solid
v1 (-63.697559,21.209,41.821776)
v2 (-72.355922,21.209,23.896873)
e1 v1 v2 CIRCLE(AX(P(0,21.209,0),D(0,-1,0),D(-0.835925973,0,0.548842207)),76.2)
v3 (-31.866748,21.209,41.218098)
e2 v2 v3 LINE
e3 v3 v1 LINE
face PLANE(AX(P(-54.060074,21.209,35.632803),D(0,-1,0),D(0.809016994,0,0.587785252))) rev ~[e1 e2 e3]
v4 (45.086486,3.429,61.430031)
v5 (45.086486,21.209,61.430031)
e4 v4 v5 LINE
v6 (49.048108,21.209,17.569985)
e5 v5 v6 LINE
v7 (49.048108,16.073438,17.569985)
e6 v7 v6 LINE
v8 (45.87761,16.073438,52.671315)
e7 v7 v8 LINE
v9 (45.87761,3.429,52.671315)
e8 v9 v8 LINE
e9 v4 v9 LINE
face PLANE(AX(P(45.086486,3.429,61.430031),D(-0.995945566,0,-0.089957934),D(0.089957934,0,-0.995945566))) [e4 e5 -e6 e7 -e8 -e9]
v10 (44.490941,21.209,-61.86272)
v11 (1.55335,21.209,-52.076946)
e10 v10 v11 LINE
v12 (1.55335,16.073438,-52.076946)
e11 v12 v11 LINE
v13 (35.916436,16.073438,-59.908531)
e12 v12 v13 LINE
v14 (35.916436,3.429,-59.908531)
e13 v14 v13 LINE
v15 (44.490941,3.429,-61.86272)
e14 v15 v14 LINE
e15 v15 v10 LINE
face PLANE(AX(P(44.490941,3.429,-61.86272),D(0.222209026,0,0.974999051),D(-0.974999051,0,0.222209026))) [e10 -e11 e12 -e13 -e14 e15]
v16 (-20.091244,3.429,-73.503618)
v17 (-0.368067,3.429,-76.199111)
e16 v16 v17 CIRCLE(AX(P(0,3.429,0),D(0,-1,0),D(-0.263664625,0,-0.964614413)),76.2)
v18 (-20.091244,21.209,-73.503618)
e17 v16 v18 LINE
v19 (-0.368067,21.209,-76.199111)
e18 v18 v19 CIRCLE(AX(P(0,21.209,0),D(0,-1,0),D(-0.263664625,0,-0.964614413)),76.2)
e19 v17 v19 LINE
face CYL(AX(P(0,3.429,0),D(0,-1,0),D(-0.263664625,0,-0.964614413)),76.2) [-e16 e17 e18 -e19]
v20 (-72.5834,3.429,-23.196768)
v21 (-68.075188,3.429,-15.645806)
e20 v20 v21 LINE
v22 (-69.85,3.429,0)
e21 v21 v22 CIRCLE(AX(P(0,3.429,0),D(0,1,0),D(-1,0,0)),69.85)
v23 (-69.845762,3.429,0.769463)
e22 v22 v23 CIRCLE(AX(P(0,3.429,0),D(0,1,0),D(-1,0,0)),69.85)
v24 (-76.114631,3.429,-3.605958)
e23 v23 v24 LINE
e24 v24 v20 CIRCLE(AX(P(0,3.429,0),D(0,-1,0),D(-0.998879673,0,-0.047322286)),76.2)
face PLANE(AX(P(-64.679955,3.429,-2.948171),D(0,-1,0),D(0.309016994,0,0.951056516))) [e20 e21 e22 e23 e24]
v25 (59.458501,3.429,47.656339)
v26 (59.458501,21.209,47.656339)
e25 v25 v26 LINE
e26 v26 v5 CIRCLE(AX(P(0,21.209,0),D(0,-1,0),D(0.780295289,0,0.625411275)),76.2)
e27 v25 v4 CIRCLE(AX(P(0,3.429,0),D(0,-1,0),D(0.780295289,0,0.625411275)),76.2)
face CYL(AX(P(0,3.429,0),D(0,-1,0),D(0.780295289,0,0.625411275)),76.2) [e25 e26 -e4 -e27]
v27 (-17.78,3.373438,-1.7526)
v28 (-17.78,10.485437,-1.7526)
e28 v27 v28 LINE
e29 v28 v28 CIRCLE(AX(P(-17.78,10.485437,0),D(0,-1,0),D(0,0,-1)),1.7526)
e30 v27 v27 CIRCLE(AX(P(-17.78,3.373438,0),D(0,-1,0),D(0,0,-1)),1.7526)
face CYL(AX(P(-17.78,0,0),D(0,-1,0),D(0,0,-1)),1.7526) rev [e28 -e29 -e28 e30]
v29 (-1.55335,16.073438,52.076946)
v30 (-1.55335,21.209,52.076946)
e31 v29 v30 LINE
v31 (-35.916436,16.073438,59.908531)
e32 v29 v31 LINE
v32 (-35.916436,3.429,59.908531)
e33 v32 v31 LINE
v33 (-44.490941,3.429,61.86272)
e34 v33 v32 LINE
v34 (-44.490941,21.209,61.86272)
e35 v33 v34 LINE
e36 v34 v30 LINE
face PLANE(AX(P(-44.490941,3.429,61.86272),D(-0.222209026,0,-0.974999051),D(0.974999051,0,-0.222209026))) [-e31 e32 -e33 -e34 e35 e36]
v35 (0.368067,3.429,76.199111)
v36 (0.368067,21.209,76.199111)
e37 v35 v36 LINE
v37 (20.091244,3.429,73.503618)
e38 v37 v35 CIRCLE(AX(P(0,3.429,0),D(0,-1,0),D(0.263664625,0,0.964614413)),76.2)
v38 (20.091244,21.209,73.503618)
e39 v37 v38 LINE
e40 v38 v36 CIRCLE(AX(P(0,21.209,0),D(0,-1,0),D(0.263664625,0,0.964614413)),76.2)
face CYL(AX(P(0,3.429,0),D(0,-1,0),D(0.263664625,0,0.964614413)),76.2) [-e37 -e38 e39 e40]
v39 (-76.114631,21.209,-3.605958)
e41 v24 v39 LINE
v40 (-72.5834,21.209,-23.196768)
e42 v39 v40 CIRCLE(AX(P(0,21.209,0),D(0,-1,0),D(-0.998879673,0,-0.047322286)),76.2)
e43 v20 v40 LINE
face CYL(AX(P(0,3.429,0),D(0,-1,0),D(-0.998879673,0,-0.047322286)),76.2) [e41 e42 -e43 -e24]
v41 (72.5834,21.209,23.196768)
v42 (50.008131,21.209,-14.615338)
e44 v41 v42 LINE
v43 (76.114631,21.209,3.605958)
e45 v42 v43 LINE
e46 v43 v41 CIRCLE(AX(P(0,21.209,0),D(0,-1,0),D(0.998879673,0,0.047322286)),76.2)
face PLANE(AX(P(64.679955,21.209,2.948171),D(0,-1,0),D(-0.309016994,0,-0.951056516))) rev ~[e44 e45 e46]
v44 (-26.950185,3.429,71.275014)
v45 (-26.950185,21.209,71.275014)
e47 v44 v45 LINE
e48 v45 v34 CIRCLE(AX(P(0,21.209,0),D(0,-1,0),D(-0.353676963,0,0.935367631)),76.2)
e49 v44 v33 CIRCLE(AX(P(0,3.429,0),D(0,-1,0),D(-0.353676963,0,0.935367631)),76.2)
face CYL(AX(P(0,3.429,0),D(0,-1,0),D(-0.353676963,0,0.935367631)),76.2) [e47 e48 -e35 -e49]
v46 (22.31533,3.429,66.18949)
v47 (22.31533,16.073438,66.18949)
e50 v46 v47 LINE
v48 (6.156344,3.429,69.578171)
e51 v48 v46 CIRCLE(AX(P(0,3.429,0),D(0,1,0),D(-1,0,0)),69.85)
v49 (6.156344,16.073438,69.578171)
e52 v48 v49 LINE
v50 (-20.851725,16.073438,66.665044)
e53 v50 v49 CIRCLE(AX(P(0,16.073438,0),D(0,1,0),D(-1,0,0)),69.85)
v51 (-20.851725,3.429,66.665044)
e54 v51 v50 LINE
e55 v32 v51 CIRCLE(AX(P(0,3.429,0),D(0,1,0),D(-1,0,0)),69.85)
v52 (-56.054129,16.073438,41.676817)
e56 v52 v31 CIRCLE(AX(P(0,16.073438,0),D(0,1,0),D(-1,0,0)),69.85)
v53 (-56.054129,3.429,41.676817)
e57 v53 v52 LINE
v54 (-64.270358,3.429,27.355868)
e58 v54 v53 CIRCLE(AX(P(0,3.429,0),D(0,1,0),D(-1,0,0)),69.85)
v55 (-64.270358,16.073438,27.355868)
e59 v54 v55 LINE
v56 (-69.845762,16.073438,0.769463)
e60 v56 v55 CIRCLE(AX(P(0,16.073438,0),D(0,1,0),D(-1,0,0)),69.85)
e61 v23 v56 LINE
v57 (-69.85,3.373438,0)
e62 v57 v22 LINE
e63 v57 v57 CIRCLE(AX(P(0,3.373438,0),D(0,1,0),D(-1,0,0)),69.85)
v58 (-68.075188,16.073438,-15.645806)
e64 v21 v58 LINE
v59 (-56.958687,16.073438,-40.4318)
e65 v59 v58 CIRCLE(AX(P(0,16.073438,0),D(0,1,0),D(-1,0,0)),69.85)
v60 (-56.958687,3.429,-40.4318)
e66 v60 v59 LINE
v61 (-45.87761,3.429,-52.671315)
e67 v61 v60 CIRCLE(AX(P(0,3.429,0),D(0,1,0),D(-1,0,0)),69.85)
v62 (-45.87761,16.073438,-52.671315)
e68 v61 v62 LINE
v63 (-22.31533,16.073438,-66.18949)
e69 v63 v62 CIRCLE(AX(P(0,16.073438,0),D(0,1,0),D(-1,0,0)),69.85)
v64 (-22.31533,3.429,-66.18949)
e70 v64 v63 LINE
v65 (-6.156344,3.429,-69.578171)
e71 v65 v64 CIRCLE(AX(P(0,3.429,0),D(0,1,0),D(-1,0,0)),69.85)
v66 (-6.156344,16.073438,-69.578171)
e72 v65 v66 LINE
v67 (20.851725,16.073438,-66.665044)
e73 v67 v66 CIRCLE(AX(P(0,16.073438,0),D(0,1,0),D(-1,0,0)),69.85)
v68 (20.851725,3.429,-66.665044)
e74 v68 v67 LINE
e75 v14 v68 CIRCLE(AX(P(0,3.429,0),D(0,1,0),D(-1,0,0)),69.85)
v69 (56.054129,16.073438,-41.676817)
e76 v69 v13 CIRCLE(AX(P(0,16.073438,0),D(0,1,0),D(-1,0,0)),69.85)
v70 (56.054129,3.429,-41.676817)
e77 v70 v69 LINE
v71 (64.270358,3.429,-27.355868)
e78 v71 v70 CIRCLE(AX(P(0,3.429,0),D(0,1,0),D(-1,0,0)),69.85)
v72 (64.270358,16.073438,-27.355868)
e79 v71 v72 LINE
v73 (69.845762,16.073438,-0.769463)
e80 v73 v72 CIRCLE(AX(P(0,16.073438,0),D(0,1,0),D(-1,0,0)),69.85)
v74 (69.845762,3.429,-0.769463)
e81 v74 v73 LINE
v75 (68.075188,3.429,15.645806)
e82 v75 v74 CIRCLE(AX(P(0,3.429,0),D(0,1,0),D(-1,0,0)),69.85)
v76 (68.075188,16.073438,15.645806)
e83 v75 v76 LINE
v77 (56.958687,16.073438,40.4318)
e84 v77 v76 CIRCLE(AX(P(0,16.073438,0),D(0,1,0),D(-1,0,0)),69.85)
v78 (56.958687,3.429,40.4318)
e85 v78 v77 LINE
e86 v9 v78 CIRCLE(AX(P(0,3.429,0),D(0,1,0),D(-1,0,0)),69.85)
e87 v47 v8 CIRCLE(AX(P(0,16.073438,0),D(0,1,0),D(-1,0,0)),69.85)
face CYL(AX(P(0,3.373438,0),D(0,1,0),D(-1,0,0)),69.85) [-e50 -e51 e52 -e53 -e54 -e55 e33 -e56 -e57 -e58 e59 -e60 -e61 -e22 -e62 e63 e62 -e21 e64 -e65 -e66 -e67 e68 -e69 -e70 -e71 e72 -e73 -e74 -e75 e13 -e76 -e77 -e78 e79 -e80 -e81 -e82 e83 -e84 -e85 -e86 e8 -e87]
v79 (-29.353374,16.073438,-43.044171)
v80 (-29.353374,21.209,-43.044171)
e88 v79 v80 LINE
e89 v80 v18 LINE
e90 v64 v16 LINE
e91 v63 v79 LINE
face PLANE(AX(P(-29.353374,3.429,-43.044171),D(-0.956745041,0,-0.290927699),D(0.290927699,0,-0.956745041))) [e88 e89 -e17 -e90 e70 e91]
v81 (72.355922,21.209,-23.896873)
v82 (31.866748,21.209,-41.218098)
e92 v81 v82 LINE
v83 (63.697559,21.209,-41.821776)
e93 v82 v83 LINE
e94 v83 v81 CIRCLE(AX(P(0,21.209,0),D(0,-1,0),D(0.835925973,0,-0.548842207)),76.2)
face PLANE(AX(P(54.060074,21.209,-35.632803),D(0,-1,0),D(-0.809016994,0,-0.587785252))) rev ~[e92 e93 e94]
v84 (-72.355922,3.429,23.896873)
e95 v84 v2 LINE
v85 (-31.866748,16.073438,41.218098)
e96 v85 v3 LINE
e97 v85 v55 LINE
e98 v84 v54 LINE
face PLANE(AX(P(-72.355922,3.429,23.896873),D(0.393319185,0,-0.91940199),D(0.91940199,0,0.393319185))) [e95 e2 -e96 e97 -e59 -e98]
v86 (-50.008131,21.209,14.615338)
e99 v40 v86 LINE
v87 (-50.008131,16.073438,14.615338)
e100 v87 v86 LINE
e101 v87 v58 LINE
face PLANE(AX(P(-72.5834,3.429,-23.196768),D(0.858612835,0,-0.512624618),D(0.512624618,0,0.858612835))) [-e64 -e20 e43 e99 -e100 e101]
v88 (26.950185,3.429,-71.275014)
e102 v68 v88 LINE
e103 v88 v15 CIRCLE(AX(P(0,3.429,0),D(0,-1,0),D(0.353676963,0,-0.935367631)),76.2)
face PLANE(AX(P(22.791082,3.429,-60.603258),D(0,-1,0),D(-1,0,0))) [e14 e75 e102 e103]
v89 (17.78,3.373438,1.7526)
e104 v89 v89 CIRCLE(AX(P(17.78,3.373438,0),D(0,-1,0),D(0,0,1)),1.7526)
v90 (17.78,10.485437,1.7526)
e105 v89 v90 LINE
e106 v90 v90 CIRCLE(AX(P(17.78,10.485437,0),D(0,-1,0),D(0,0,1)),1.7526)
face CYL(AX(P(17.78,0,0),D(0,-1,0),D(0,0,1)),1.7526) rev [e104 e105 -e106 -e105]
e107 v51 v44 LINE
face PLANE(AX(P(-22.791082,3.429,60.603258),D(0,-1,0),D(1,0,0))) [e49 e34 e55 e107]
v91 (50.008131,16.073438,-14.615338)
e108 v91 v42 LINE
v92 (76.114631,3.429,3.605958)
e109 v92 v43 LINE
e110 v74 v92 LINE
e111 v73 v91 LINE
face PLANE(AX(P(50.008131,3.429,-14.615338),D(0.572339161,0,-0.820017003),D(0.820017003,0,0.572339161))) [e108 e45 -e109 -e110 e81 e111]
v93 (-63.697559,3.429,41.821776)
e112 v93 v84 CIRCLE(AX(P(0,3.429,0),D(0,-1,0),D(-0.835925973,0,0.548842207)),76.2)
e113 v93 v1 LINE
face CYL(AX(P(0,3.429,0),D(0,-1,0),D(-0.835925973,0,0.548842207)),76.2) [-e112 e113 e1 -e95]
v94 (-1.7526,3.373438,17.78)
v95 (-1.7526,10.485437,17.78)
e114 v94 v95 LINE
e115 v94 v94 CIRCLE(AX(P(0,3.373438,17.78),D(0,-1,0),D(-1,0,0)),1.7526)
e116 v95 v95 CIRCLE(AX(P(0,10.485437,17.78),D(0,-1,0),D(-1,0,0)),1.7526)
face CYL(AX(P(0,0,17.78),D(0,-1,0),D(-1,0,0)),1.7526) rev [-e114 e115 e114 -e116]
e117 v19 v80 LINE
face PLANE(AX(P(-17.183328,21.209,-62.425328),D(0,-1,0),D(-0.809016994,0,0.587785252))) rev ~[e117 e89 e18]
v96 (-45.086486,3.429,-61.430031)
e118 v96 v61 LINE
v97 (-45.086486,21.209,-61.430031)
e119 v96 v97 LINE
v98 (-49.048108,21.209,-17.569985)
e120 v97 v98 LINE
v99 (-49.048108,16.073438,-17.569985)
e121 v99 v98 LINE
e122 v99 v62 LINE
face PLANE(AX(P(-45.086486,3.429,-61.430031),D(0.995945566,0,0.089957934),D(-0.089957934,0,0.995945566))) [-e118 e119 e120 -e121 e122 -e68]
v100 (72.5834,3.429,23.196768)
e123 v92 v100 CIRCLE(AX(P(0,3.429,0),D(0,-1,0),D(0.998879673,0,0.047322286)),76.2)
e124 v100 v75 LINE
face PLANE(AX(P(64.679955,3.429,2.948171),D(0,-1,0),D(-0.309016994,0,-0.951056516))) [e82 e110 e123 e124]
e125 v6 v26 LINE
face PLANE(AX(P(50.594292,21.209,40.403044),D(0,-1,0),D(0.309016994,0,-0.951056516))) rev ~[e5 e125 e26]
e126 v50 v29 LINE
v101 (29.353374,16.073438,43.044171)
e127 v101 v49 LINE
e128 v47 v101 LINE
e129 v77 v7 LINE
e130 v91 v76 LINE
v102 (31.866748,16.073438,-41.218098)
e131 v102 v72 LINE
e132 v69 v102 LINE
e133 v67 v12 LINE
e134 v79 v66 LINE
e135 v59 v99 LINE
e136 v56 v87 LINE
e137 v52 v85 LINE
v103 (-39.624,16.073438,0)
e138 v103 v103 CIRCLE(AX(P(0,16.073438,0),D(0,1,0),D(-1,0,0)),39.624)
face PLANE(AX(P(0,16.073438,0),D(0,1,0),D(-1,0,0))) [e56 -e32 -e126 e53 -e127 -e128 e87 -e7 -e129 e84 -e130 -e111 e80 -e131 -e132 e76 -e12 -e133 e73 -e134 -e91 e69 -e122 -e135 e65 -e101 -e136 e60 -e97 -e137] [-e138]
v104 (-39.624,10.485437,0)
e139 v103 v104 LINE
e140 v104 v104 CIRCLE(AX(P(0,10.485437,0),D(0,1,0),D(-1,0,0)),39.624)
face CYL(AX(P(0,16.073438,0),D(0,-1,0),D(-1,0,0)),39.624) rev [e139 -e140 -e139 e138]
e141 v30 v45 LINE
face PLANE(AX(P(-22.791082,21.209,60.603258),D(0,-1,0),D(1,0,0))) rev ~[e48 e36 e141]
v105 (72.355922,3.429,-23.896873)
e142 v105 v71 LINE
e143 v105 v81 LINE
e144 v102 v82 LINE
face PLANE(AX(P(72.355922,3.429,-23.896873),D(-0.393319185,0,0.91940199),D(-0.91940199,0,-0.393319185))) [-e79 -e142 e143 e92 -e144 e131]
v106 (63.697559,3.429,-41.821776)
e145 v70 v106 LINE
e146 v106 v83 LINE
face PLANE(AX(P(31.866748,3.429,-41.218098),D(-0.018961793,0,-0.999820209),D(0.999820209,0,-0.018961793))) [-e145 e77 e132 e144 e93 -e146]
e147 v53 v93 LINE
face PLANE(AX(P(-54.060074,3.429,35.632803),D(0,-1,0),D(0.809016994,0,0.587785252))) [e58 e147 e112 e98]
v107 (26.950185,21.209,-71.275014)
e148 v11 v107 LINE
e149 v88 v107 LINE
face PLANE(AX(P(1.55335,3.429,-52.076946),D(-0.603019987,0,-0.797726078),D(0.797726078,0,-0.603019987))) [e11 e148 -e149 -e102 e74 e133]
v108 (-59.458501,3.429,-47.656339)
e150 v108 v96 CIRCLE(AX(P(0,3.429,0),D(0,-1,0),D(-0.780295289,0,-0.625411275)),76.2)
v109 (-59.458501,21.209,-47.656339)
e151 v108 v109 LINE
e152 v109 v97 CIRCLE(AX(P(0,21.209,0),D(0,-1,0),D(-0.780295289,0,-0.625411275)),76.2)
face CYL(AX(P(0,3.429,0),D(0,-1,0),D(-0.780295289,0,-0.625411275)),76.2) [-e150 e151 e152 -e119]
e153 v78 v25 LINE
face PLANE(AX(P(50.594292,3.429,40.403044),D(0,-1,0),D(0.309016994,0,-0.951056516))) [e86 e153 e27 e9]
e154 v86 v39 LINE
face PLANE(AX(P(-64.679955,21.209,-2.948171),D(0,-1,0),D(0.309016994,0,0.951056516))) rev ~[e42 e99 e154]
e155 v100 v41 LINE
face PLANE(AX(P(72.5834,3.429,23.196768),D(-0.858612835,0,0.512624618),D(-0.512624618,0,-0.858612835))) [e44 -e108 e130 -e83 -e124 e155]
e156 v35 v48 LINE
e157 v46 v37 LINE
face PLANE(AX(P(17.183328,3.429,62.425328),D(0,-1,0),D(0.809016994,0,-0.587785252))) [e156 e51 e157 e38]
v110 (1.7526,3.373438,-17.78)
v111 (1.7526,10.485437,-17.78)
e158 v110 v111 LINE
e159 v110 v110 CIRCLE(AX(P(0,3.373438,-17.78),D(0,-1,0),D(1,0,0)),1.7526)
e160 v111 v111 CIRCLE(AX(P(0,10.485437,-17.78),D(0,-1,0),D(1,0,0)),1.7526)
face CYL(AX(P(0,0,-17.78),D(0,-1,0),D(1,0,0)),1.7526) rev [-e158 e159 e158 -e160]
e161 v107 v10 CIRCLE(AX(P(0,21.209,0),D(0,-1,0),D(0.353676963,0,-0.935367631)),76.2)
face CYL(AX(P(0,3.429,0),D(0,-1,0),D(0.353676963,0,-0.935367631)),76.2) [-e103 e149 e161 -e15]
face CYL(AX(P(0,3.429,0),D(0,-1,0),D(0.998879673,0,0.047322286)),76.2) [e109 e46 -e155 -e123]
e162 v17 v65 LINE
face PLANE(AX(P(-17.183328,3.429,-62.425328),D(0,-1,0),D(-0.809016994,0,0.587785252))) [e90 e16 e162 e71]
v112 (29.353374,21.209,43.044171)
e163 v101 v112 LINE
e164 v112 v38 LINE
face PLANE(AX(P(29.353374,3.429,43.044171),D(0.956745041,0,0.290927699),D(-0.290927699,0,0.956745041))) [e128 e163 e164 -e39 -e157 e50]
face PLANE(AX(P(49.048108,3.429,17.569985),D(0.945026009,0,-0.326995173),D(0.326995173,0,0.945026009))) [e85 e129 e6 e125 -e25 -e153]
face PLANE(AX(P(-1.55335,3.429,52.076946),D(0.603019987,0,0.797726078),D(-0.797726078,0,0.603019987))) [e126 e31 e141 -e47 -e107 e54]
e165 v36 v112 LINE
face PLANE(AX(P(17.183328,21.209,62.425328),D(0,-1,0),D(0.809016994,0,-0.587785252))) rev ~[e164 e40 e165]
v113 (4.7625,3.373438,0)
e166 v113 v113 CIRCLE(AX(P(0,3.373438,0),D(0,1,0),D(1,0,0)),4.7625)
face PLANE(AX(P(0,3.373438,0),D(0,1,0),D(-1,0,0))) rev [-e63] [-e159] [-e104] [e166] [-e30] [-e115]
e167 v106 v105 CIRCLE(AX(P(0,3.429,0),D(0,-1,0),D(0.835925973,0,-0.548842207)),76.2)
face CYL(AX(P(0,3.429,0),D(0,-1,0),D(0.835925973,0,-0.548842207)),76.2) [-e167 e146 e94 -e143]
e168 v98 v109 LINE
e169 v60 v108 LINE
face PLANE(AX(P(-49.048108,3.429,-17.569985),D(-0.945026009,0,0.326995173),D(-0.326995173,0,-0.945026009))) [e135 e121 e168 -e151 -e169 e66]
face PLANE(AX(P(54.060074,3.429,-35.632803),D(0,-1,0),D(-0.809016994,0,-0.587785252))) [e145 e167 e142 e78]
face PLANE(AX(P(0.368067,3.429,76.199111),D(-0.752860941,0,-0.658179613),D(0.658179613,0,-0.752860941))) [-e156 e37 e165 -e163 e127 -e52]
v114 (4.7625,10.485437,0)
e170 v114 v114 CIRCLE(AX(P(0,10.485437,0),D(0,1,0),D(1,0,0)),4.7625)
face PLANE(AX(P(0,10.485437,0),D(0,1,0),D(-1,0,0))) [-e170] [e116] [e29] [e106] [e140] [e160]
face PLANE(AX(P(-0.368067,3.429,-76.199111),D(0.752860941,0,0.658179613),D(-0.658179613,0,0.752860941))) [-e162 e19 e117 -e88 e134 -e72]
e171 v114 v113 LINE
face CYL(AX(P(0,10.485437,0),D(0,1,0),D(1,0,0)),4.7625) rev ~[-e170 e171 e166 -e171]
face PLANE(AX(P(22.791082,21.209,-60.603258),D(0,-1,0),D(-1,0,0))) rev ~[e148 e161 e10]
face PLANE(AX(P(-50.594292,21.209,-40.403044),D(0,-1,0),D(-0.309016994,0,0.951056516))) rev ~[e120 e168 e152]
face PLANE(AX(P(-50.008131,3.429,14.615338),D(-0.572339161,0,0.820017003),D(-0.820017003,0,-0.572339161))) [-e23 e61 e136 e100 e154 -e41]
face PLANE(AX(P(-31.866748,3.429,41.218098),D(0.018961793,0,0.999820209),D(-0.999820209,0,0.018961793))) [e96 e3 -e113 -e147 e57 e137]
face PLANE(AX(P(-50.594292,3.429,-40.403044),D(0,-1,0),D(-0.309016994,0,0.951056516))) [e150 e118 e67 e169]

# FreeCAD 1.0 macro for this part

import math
import FreeCAD as App
import Part
import Sketcher
Q = App.Units.Quantity

doc = App.newDocument("Part")
params = doc.addObject("Spreadsheet::Sheet", "Params")
for row, (alias, value) in enumerate([
    ("sketch1_height", "0.5 in"),
    ("sketch1_width", "1.19 in"),
    ("sketch1_width2", "2.75 in"),
    ("sketch1_height2", "0.28 in"),
    ("revolution_angle", "360 deg"),
    ("sketch2_radius", "3 in"),
    ("pad1_length", "0.7 in"),
    ("sketch3_diameter", "0.138 in"),
    ("pocket1_length", "0.55 in"),
    ("sketch4_diameter", "0.375 in"),
    ("pocket2_length", "0.3 in"),
], start=1):
    params.set(f"A{row}", alias)
    params.set(f"B{row}", "=" + value)
    params.setAlias(f"B{row}", alias)

body = doc.addObject("PartDesign::Body", "Body")

sketch1 = body.newObject("Sketcher::SketchObject", "Sketch")
sketch1.AttachmentSupport = (doc.getObject("XY_Plane"), [""])
sketch1.MapMode = "FlatFace"
sketch1.addGeometry(Part.LineSegment(App.Vector(-40, 16, 0), App.Vector(-70, 16, 0)), False)
sketch1.addGeometry(Part.LineSegment(App.Vector(-70, 16, 0), App.Vector(-70, 3, 0)), False)
sketch1.addGeometry(Part.LineSegment(App.Vector(-70, 3, 0), App.Vector(0, 3, 0)), False)
sketch1.addGeometry(Part.LineSegment(App.Vector(0, 3, 0), App.Vector(0, 10, 0)), False)
sketch1.addGeometry(Part.LineSegment(App.Vector(0, 10, 0), App.Vector(-40, 10, 0)), False)
sketch1.addGeometry(Part.LineSegment(App.Vector(-40, 10, 0), App.Vector(-40, 16, 0)), False)
sketch1.addConstraint(Sketcher.Constraint("Coincident", 0, 2, 1, 1))
sketch1.addConstraint(Sketcher.Constraint("Coincident", 1, 2, 2, 1))
sketch1.addConstraint(Sketcher.Constraint("Coincident", 2, 2, 3, 1))
sketch1.addConstraint(Sketcher.Constraint("Coincident", 3, 2, 4, 1))
sketch1.addConstraint(Sketcher.Constraint("Coincident", 4, 2, 5, 1))
sketch1.addConstraint(Sketcher.Constraint("Coincident", 5, 2, 0, 1))
sketch1.addConstraint(Sketcher.Constraint("Horizontal", 0))
sketch1.addConstraint(Sketcher.Constraint("Vertical", 1))
sketch1.addConstraint(Sketcher.Constraint("Horizontal", 2))
sketch1.addConstraint(Sketcher.Constraint("Vertical", 3))
sketch1.addConstraint(Sketcher.Constraint("Horizontal", 4))
sketch1.addConstraint(Sketcher.Constraint("Vertical", 5))
sketch1.addConstraint(Sketcher.Constraint("PointOnObject", 2, 2, -2))
sketch1.addConstraint(Sketcher.Constraint("DistanceY", 1, 2, 1, 1, Q("0.5 in")))
sketch1.addConstraint(Sketcher.Constraint("DistanceX", 0, 2, 0, 1, Q("1.19 in")))
sketch1.addConstraint(Sketcher.Constraint("DistanceX", 2, 1, 2, 2, Q("2.75 in")))
sketch1.addConstraint(Sketcher.Constraint("DistanceY", 3, 1, 3, 2, Q("0.28 in")))
sketch1.addConstraint(Sketcher.Constraint("DistanceY", -1, 1, 0, 2, Q("16.073438 mm")))
sketch1.setExpression("Constraints[13]", "Params.sketch1_height")
sketch1.setExpression("Constraints[14]", "Params.sketch1_width")
sketch1.setExpression("Constraints[15]", "Params.sketch1_width2")
sketch1.setExpression("Constraints[16]", "Params.sketch1_height2")
revolution = body.newObject("PartDesign::Revolution", "Revolution")
revolution.Profile = sketch1
revolution.ReferenceAxis = (sketch1, ["V_Axis"])
revolution.setExpression("Angle", "Params.revolution_angle")

sketch2 = body.newObject("Sketcher::SketchObject", "Sketch001")
sketch2.AttachmentSupport = (doc.getObject("XZ_Plane"), [""])
sketch2.MapMode = "FlatFace"
sketch2.AttachmentOffset = App.Placement(App.Vector(0, 0, -0.135 * 25.4), App.Rotation())
sketch2.addGeometry(Part.LineSegment(App.Vector(27, -71, 0), App.Vector(2, -52, 0)), False)
sketch2.addGeometry(Part.LineSegment(App.Vector(2, -52, 0), App.Vector(44, -62, 0)), False)
sketch2.addGeometry(Part.ArcOfCircle(Part.Circle(App.Vector(0, 0, 0), App.Vector(0, 0, 1), 76), math.radians(-69.29), math.radians(-54.28)), False)
sketch2.addConstraint(Sketcher.Constraint("Coincident", 0, 2, 1, 1))
sketch2.addConstraint(Sketcher.Constraint("Coincident", 1, 2, 2, 2))
sketch2.addConstraint(Sketcher.Constraint("Coincident", 2, 1, 0, 1))
sketch2.addConstraint(Sketcher.Constraint("Coincident", 2, 3, -1, 1))
sketch2.addConstraint(Sketcher.Constraint("Radius", 2, Q("3 in")))
sketch2.addConstraint(Sketcher.Constraint("DistanceX", -1, 1, 0, 2, Q("1.55335 mm")))
sketch2.addConstraint(Sketcher.Constraint("DistanceX", -1, 1, 1, 2, Q("44.490941 mm")))
sketch2.addConstraint(Sketcher.Constraint("Distance", 0, Q("31.836536 mm")))
sketch2.addConstraint(Sketcher.Constraint("Distance", 1, Q("44.038598 mm")))
sketch2.setExpression("Constraints[4]", "Params.sketch2_radius")
pad1 = body.newObject("PartDesign::Pad", "Pad")
pad1.Profile = sketch2
pad1.setExpression("Length", "Params.pad1_length")
pad1.Reversed = True
doc.recompute()

polarpattern = body.newObject("PartDesign::PolarPattern", "PolarPattern")
polarpattern.Originals = [pad1]
polarpattern.Axis = (doc.getObject("Y_Axis"), [""])
polarpattern.Angle = 360
polarpattern.Occurrences = 10
body.Tip = polarpattern

sketch3 = body.newObject("Sketcher::SketchObject", "Sketch002")
sketch3.AttachmentSupport = (doc.getObject("XZ_Plane"), [""])
sketch3.MapMode = "FlatFace"
sketch3.addGeometry(Part.Circle(App.Vector(0, -17.8, 0), App.Vector(0, 0, 1), 1.8), False)
sketch3.addConstraint(Sketcher.Constraint("PointOnObject", 0, 3, -2))
sketch3.addConstraint(Sketcher.Constraint("Diameter", 0, Q("0.138 in")))
sketch3.addConstraint(Sketcher.Constraint("DistanceY", 0, 3, -1, 1, Q("0.7 in")))
sketch3.setExpression("Constraints[1]", "Params.sketch3_diameter")
pocket1 = body.newObject("PartDesign::Pocket", "Pocket")
pocket1.Profile = sketch3
pocket1.setExpression("Length", "Params.pocket1_length")
doc.recompute()

polarpattern2 = body.newObject("PartDesign::PolarPattern", "PolarPattern001")
polarpattern2.Originals = [pocket1]
polarpattern2.Axis = (doc.getObject("Y_Axis"), [""])
polarpattern2.Angle = 360
polarpattern2.Occurrences = 4
body.Tip = polarpattern2

sketch4 = body.newObject("Sketcher::SketchObject", "Sketch003")
sketch4.AttachmentSupport = (doc.getObject("XZ_Plane"), [""])
sketch4.MapMode = "FlatFace"
sketch4.AttachmentOffset = App.Placement(App.Vector(0, 0, -10.485437), App.Rotation())
sketch4.addGeometry(Part.Circle(App.Vector(0, 0, 0), App.Vector(0, 0, 1), 4.8), False)
sketch4.addConstraint(Sketcher.Constraint("Coincident", 0, 3, -1, 1))
sketch4.addConstraint(Sketcher.Constraint("Diameter", 0, Q("0.375 in")))
sketch4.setExpression("Constraints[1]", "Params.sketch4_diameter")
pocket2 = body.newObject("PartDesign::Pocket", "Pocket001")
pocket2.Profile = sketch4
pocket2.setExpression("Length", "Params.pocket2_length")
pocket2.Reversed = True

doc.recompute()
